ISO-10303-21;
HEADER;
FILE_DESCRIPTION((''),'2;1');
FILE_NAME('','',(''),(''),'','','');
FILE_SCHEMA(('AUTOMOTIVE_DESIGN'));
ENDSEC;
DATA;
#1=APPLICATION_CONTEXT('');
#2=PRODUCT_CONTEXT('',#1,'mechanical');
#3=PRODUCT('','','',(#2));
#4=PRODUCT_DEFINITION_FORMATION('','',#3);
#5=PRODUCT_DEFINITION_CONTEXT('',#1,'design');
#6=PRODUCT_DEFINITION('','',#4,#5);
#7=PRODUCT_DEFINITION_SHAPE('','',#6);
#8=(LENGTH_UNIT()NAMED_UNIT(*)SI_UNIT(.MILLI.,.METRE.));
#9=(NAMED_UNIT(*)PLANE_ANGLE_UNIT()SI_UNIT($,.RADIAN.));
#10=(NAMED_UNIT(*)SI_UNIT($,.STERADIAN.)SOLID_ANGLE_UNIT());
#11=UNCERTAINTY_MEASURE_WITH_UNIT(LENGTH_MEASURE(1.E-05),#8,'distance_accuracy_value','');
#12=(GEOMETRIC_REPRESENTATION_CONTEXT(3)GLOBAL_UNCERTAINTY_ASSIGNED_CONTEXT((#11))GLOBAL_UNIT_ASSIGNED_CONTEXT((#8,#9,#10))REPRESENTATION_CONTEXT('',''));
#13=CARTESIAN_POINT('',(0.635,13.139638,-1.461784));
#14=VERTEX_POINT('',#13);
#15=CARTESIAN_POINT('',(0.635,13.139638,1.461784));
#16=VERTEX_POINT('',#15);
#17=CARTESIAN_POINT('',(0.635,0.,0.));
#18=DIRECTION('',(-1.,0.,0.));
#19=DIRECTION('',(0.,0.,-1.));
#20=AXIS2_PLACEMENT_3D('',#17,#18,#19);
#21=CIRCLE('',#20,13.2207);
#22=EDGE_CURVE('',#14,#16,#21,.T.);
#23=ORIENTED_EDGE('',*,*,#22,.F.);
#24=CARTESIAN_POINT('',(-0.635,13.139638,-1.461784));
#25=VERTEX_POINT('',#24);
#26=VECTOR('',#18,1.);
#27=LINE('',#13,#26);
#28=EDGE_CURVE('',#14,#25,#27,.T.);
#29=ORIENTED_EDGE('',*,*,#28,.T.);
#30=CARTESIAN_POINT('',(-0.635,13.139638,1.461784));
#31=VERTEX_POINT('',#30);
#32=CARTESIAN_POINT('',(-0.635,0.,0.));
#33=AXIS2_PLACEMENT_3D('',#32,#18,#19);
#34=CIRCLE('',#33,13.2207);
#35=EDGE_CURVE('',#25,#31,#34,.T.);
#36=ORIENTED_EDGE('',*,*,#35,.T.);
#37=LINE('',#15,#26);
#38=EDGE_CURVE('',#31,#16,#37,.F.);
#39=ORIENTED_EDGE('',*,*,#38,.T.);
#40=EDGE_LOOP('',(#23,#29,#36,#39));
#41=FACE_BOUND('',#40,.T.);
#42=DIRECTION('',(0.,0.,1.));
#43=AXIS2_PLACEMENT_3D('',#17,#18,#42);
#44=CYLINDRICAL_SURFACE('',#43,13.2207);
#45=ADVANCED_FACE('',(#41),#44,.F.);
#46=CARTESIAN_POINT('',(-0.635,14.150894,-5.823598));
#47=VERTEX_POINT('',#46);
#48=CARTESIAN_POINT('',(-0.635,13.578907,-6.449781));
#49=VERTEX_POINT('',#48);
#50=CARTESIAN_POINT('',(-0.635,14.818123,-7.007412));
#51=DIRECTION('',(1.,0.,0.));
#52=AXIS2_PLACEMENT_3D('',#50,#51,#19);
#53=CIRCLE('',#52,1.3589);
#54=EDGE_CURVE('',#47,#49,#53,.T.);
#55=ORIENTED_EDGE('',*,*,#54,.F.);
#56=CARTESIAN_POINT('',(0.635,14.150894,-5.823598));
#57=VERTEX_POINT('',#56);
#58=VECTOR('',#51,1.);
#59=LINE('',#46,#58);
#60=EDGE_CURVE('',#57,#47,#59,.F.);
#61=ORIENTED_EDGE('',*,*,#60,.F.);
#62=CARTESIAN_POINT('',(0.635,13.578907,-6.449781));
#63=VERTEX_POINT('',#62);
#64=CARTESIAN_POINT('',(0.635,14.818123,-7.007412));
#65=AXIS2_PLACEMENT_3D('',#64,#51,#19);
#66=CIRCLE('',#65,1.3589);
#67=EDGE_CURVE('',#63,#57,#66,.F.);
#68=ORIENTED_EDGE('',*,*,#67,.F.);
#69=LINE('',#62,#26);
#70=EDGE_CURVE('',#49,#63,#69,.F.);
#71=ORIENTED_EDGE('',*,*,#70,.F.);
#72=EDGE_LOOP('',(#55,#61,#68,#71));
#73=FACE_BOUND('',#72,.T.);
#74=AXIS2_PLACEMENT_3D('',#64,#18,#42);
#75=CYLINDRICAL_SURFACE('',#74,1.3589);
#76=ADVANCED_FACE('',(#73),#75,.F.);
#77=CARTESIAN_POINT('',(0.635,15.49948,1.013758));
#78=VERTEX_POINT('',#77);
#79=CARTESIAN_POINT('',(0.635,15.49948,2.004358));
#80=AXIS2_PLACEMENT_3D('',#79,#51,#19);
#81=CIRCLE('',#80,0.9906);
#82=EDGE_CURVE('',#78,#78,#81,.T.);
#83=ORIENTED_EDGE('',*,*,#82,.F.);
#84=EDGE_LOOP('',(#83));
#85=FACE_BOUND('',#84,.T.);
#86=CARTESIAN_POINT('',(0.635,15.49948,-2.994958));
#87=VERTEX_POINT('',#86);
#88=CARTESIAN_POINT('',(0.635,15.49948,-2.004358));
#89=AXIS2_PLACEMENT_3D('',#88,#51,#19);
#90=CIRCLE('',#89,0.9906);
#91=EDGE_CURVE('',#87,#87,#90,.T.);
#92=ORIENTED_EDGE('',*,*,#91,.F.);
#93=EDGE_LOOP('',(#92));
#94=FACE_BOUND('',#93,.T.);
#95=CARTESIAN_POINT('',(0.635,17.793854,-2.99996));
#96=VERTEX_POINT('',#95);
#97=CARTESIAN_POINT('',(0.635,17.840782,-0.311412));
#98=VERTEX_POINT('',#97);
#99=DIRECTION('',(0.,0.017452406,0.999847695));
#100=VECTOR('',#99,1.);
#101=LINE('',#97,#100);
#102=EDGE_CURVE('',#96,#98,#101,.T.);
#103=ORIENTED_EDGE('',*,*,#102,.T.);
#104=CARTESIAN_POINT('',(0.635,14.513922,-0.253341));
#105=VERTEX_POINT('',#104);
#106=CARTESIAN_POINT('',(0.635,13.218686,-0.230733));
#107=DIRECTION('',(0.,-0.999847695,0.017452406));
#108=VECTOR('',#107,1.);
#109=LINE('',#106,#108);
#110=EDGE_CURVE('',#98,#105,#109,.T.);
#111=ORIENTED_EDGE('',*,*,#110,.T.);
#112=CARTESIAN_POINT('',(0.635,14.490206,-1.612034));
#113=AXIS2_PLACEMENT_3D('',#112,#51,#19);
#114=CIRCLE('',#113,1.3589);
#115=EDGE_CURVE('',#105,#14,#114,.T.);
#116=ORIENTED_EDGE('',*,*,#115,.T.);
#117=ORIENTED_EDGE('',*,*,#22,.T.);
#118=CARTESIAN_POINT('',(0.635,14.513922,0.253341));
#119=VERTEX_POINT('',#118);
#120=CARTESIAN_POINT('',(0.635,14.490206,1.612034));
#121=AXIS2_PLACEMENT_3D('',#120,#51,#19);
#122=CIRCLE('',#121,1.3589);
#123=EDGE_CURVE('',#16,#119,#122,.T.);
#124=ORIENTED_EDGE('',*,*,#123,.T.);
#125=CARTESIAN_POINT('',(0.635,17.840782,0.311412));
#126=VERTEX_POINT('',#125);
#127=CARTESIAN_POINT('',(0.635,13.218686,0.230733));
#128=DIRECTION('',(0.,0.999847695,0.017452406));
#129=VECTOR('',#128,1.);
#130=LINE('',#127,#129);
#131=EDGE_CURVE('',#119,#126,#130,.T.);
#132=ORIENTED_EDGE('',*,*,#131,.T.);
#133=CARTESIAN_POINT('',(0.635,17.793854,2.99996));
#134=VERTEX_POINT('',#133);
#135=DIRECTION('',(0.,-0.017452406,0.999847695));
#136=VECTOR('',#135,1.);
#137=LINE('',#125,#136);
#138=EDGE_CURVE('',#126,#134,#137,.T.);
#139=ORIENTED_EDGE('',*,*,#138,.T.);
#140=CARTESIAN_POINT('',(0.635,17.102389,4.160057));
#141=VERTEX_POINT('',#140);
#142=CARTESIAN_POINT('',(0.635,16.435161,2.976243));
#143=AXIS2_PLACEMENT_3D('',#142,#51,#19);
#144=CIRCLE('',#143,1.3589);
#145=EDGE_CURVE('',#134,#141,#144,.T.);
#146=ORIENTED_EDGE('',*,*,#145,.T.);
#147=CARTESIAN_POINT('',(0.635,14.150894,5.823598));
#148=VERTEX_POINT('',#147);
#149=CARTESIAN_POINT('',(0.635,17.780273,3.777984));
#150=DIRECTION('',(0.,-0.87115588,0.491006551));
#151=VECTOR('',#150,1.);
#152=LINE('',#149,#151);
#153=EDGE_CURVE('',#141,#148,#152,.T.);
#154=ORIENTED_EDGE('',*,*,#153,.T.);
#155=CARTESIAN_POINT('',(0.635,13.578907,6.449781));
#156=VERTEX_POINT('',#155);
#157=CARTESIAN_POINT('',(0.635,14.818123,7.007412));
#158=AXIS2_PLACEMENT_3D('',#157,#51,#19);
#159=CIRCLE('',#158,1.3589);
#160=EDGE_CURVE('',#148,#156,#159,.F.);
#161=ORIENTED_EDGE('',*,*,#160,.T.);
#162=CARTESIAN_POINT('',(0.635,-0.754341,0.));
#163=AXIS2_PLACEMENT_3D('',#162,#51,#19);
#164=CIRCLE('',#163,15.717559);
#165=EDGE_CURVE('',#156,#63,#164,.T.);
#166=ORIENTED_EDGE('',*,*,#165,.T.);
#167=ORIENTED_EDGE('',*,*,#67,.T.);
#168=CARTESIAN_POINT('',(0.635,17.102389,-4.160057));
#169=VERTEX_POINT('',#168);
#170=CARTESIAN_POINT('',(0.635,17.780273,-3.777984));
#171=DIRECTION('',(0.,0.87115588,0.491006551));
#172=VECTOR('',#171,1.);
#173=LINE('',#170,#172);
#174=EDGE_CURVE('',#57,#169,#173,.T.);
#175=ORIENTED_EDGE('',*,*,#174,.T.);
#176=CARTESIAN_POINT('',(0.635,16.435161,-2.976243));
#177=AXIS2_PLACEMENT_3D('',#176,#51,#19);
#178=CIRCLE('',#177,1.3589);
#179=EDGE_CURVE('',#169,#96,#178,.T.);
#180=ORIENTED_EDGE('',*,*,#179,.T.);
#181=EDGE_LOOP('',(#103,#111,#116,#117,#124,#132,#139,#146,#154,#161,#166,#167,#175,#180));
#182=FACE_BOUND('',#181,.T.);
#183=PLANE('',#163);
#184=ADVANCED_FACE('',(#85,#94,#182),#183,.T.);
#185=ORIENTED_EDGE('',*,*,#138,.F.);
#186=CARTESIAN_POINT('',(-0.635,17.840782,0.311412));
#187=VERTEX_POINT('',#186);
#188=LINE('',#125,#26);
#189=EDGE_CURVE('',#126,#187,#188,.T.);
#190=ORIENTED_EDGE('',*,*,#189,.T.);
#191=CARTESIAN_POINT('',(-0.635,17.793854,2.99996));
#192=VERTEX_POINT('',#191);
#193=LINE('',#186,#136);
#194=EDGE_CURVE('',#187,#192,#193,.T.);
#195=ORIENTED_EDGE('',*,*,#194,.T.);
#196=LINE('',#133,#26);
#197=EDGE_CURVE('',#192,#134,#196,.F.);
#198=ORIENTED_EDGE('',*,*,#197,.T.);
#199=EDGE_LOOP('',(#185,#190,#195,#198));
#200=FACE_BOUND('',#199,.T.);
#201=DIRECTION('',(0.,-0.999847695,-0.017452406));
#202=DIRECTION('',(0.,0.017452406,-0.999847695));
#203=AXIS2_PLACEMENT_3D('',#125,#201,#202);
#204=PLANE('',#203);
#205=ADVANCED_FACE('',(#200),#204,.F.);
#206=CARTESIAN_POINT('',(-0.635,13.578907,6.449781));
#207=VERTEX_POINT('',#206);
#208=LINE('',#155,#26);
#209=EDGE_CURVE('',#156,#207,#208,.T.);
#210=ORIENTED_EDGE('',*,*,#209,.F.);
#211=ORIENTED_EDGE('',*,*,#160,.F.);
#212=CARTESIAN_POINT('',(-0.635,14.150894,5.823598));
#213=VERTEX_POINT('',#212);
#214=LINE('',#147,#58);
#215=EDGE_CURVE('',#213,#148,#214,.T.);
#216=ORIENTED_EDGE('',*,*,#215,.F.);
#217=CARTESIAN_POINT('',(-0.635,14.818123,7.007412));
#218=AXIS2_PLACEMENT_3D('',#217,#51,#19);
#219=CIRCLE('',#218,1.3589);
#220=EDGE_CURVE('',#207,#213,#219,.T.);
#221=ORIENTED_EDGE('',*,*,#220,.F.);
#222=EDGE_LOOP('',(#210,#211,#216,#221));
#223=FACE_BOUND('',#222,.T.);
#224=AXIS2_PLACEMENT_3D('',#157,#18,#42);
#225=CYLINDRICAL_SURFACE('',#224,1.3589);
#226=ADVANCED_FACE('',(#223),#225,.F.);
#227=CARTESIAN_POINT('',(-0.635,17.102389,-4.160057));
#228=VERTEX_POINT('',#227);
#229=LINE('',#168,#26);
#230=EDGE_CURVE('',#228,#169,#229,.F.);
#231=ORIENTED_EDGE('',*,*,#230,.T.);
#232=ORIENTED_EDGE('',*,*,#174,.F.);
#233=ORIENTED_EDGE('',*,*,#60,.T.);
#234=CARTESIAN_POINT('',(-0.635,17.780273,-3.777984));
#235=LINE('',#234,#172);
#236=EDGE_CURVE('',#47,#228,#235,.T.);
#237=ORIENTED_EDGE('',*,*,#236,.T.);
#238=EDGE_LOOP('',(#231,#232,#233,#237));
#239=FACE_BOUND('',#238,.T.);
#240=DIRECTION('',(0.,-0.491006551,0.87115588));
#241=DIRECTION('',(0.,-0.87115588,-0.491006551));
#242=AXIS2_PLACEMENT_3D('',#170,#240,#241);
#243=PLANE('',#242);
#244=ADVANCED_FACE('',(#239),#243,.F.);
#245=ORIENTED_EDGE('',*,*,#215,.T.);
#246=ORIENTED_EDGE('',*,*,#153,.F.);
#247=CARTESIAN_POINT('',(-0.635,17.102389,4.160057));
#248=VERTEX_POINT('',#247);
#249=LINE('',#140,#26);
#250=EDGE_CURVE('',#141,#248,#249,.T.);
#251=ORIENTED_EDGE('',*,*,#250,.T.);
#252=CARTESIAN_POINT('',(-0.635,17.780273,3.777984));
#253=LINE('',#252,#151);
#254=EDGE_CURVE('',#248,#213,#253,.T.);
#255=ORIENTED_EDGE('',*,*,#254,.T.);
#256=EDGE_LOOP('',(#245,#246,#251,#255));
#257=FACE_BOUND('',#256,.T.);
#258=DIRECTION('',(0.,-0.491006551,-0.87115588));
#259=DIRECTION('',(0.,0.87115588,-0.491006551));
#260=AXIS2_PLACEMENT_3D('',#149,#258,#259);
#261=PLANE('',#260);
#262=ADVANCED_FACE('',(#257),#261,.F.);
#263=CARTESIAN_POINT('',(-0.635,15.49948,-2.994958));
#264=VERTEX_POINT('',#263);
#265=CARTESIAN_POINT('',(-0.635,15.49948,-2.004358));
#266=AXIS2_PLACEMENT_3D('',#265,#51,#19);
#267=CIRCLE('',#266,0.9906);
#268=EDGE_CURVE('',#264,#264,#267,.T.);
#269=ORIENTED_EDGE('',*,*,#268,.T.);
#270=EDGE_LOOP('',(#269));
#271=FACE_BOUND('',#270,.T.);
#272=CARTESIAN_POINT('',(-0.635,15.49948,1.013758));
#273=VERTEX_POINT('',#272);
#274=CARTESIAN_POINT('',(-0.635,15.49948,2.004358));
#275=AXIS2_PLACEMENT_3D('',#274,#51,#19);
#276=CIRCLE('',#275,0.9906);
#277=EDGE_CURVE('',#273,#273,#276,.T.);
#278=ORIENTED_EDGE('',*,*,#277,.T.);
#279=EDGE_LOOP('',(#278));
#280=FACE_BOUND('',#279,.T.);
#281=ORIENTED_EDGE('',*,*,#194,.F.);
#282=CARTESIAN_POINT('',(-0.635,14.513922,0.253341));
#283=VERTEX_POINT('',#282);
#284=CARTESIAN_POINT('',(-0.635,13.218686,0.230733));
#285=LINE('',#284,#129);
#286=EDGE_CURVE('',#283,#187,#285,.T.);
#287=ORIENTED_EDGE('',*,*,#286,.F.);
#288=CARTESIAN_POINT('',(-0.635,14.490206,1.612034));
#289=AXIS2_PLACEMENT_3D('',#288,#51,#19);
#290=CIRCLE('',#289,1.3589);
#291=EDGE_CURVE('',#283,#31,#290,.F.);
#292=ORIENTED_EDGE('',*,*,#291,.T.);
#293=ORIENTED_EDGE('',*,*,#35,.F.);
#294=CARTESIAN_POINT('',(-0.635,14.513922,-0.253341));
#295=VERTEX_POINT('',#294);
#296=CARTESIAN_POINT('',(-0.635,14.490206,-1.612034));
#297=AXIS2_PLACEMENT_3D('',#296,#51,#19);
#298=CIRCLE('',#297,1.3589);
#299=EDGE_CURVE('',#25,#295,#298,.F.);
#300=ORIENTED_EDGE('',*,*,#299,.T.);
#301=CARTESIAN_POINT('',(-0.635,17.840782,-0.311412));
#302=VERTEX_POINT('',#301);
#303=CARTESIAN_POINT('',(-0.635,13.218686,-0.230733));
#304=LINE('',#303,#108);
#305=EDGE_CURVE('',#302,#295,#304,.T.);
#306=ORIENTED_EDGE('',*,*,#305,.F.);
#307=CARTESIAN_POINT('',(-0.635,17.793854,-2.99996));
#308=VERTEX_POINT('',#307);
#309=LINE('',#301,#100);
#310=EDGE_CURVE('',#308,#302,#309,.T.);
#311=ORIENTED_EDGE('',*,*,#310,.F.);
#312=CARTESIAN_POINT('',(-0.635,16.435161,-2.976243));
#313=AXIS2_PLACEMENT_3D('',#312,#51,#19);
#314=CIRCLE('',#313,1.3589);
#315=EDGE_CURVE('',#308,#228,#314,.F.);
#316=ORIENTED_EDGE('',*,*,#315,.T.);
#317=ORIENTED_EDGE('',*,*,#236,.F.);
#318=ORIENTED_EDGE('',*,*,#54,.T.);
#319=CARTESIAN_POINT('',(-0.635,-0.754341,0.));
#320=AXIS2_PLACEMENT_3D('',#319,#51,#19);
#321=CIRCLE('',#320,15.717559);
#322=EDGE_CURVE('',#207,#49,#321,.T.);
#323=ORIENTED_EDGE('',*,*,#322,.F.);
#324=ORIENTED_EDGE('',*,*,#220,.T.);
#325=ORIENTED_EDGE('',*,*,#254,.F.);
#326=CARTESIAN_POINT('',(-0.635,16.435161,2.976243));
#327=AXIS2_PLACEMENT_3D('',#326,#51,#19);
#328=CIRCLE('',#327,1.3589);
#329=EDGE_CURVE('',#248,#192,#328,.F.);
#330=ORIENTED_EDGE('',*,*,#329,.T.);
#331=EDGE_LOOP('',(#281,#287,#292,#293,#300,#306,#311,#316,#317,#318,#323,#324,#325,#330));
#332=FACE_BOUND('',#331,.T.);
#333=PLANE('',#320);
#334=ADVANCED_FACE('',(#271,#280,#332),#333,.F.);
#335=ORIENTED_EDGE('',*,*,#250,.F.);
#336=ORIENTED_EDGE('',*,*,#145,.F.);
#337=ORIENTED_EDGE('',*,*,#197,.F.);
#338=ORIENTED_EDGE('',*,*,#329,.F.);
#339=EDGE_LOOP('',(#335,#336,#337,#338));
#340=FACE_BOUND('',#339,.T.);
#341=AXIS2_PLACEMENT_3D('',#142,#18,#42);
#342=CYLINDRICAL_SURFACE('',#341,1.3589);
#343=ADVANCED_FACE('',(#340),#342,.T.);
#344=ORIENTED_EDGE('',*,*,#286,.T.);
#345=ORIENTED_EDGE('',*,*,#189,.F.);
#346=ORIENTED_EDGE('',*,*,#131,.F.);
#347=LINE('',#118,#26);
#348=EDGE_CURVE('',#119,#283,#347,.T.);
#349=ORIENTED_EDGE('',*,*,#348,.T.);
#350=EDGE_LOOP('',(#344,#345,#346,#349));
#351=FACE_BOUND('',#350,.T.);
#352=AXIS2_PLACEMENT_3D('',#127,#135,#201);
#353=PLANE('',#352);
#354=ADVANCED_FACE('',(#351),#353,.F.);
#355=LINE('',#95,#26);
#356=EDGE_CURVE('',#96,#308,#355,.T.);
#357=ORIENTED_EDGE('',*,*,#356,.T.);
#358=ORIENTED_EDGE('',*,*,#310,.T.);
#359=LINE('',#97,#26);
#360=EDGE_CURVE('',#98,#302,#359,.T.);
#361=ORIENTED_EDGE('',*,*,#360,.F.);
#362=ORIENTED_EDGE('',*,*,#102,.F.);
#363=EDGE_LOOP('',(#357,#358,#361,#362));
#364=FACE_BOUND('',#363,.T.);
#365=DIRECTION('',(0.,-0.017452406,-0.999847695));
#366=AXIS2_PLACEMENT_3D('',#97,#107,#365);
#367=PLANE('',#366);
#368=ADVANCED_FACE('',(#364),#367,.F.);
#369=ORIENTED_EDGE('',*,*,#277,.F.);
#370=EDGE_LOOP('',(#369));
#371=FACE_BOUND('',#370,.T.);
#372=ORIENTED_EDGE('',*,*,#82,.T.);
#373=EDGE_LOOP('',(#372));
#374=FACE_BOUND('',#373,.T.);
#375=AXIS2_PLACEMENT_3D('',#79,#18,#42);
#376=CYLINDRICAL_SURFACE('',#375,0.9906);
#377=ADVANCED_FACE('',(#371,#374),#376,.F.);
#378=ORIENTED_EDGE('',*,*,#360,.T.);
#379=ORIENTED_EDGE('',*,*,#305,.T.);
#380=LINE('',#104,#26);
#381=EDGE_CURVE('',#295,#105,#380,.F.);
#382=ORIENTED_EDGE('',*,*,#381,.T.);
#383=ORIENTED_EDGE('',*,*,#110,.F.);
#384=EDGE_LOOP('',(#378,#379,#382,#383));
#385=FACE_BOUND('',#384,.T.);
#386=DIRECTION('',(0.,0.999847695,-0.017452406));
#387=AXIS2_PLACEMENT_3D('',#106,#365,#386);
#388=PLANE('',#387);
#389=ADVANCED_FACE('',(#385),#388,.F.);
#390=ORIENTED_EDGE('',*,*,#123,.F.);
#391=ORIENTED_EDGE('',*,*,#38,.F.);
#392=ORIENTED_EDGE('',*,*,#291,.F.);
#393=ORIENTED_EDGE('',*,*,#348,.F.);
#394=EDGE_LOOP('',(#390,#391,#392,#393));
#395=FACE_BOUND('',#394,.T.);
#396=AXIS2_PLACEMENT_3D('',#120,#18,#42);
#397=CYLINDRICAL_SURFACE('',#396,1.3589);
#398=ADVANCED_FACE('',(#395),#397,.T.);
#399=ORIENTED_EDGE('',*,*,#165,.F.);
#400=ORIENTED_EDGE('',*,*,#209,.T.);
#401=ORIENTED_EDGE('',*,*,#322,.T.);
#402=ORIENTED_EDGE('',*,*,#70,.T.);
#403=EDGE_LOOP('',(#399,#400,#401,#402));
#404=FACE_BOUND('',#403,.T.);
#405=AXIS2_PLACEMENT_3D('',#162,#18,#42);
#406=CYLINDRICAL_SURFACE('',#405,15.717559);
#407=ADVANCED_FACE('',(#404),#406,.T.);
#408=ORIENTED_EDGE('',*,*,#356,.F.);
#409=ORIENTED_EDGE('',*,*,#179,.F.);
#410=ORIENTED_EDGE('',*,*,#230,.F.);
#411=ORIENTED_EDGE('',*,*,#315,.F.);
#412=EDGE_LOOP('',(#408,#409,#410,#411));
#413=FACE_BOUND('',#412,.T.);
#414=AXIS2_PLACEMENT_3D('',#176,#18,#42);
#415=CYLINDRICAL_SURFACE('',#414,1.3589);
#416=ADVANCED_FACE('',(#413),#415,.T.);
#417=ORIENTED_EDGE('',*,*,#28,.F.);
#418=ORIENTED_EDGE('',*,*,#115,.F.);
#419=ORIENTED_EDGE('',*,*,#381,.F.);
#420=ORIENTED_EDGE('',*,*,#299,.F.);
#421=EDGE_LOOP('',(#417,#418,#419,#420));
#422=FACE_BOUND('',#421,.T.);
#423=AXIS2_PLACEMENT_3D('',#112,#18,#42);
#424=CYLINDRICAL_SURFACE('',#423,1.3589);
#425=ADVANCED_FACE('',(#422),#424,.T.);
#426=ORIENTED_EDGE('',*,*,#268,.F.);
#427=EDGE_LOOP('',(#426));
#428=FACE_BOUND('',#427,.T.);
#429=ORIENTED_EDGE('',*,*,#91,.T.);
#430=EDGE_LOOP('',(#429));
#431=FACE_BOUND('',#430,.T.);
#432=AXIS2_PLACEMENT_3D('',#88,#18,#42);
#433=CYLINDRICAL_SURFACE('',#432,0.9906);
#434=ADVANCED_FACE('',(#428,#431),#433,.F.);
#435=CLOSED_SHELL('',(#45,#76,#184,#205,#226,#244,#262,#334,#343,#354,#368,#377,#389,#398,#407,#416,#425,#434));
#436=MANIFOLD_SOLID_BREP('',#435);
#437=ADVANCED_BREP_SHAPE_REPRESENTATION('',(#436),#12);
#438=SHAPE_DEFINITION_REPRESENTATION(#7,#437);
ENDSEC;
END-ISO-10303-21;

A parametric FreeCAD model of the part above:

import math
import FreeCAD as App
import Part
import Sketcher
from FreeCAD import Vector
Q = App.Units.Quantity


def edges_at(feature, points):
    """Names of the edges that pass closest to the given points."""
    edges = feature.Shape.Edges
    near = lambda p: min(range(len(edges)), key=lambda i: edges[i].distToShape(Part.Vertex(*p))[0])
    return sorted({f"Edge{near(p) + 1}" for p in points})

doc = App.newDocument("Part")
body = doc.addObject("PartDesign::Body", "Body")

sketch1 = body.newObject("Sketcher::SketchObject", "Sketch")
sketch1.AttachmentSupport = (doc.getObject("YZ_Plane"), [""])
sketch1.MapMode = "FlatFace"
sketch1.addGeometry([
    Part.LineSegment(Vector(17.780273, 3.777984, 0), Vector(13.753094, 6.047809, 0)),
    Part.ArcOfCircle(Part.Circle(Vector(-0.754341, 0, 0), Vector(0, 0, 1), 15.717559), math.radians(22.63011), math.radians(337.36989)),
    Part.LineSegment(Vector(13.753094, -6.047809, 0), Vector(17.780273, -3.777984, 0)),
    Part.LineSegment(Vector(17.780273, -3.777984, 0), Vector(17.840782, -0.311412, 0)),
    Part.LineSegment(Vector(17.840782, -0.311412, 0), Vector(13.218686, -0.230733, 0)),
    Part.ArcOfCircle(Part.Circle(Vector(0, 0, 0), Vector(0, 0, 1), 13.2207), math.radians(1), math.radians(359)),
    Part.LineSegment(Vector(13.218686, 0.230733, 0), Vector(17.840782, 0.311412, 0)),
    Part.LineSegment(Vector(17.840782, 0.311412, 0), Vector(17.780273, 3.777984, 0)),
    Part.Circle(Vector(15.49948, 2.004358, 0), Vector(0, 0, 1), 0.9906),
    Part.Circle(Vector(15.49948, -2.004358, 0), Vector(0, 0, 1), 0.9906),
], False)
sketch1.addConstraint([
    Sketcher.Constraint("Coincident", 0, 2, 1, 1),
    Sketcher.Constraint("Coincident", 1, 2, 2, 1),
    Sketcher.Constraint("Coincident", 2, 2, 3, 1),
    Sketcher.Constraint("Coincident", 3, 2, 4, 1),
    Sketcher.Constraint("Coincident", 4, 2, 5, 2),
    Sketcher.Constraint("Coincident", 5, 1, 6, 1),
    Sketcher.Constraint("Coincident", 6, 2, 7, 1),
    Sketcher.Constraint("Coincident", 7, 2, 0, 1),
    Sketcher.Constraint("Coincident", 5, 3, -1, 1),
    Sketcher.Constraint("Equal", 8, 9),
    Sketcher.Constraint("Symmetric", 8, 3, 9, 3, -1),
    Sketcher.Constraint("Symmetric", 0, 2, 1, 2, -1),
    Sketcher.Constraint("Symmetric", 3, 2, 6, 2, -1),
    Sketcher.Constraint("Symmetric", 2, 2, 7, 2, -1),
    Sketcher.Constraint("Perpendicular", 3, 4),
    Sketcher.Constraint("Perpendicular", 6, 7),
    Sketcher.Constraint("Equal", 2, 4),
    Sketcher.Constraint("Diameter", 8, Q("0.078 in")),
    Sketcher.Constraint("Angle", 3, Q("89 deg")),
    Sketcher.Constraint("Radius", 5, Q("0.5205 in")),
    Sketcher.Constraint("Distance", 0, Q("0.182 in")),
    Sketcher.Constraint("Radius", 1, 15.717559),
    Sketcher.Constraint("DistanceY", 2, 2, 6, 2, Q("0.1609998 in")),
    Sketcher.Constraint("Distance", 3, Q("0.1365 in")),
    Sketcher.Constraint("DistanceX", 1, 3, -1, 1, 0.754341),
    Sketcher.Constraint("DistanceX", -1, 1, 8, 3, 15.49948),
    Sketcher.Constraint("DistanceY", -1, 1, 8, 3, 2.004358),
])
pad1 = body.newObject("PartDesign::Pad", "Pad")
pad1.Profile = sketch1
pad1.Type = "TwoLengths"
pad1.Length = Q("0.025 in")
pad1.Length2 = Q("0.025 in")
doc.recompute()

fillet = body.newObject("PartDesign::Fillet", "Fillet")
fillet.Base = (pad1, edges_at(pad1, [
    (0, 13.753, 6.048),
    (0, 17.78, 3.778),
    (0, 13.219, 0.231),
    (0, 13.219, -0.231),
    (0, 17.78, -3.778),
    (0, 13.753, -6.048),
]))
fillet.Radius = Q("0.0535 in")

doc.recompute()
